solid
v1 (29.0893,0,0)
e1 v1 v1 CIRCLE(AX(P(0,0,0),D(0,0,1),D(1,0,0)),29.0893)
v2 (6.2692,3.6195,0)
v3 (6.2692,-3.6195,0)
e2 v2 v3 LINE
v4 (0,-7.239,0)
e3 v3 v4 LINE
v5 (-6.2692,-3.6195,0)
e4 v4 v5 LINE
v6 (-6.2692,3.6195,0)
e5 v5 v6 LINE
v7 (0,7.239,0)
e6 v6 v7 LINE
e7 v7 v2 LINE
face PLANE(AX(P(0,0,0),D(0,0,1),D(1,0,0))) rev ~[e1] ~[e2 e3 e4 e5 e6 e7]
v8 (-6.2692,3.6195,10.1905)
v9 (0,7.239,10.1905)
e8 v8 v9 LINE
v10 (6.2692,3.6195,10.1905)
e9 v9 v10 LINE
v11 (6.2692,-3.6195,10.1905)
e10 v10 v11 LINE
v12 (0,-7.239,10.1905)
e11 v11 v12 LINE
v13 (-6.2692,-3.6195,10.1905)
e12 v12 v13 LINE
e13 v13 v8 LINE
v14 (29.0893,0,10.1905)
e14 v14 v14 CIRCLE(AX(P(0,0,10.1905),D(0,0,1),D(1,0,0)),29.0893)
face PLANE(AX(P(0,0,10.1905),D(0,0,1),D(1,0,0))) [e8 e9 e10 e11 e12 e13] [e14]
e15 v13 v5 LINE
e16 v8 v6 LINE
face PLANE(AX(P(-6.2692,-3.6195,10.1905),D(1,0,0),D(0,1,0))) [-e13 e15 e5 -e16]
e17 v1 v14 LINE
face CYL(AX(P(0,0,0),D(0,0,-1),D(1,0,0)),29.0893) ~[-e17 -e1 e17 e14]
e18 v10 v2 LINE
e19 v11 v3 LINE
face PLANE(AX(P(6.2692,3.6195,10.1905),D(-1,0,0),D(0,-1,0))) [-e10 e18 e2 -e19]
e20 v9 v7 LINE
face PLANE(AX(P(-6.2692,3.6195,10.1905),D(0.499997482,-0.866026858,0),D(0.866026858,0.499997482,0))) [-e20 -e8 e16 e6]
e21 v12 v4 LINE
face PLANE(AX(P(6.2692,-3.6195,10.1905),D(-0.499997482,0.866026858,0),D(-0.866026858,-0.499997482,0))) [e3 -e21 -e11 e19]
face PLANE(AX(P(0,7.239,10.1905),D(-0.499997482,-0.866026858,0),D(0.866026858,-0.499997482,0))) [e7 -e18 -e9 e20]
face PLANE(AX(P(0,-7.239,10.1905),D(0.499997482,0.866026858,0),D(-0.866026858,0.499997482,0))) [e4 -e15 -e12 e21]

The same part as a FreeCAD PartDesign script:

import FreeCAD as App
import Part
import Sketcher

V = App.Vector
Q = App.Units.Quantity

doc = App.newDocument("Part")
body = doc.addObject("PartDesign::Body", "Body")

# Sketch on XY plane
sketch1 = body.newObject("Sketcher::SketchObject", "Sketch")
sketch1.AttachmentSupport = (doc.getObject("XY_Plane"), [""])
sketch1.MapMode = "FlatFace"
sketch1.addGeometry(Part.Circle(V(0, 0, 0), V(0, 0, 1), 29.0893), False)
sketch1.addConstraint(Sketcher.Constraint("Coincident", 0, 3, -1, 1))
sketch1.addConstraint(Sketcher.Constraint("Diameter", 0, Q("2.2905 in")))
pad1 = body.newObject("PartDesign::Pad", "Pad")
pad1.Profile = sketch1
pad1.Length = Q("0.4012008 in")

# Sketch on XY plane
sketch2 = body.newObject("Sketcher::SketchObject", "Sketch001")
sketch2.AttachmentSupport = (doc.getObject("XY_Plane"), [""])
sketch2.MapMode = "FlatFace"
sketch2.AttachmentOffset = App.Placement(V(0, 0, 0.4012008 * 25.4), App.Rotation())
sketch2.addGeometry(Part.LineSegment(V(6.2692, 3.6195, 0), V(0, 7.239, 0)), False)
sketch2.addGeometry(Part.LineSegment(V(0, 7.239, 0), V(-6.2692, 3.6195, 0)), False)
sketch2.addGeometry(Part.LineSegment(V(-6.2692, 3.6195, 0), V(-6.2692, -3.6195, 0)), False)
sketch2.addGeometry(Part.LineSegment(V(-6.2692, -3.6195, 0), V(0, -7.239, 0)), False)
sketch2.addGeometry(Part.LineSegment(V(0, -7.239, 0), V(6.2692, -3.6195, 0)), False)
sketch2.addGeometry(Part.LineSegment(V(6.2692, -3.6195, 0), V(6.2692, 3.6195, 0)), False)
sketch2.addConstraint(Sketcher.Constraint("Coincident", 0, 2, 1, 1))
sketch2.addConstraint(Sketcher.Constraint("Coincident", 1, 2, 2, 1))
sketch2.addConstraint(Sketcher.Constraint("Coincident", 2, 2, 3, 1))
sketch2.addConstraint(Sketcher.Constraint("Coincident", 3, 2, 4, 1))
sketch2.addConstraint(Sketcher.Constraint("Coincident", 4, 2, 5, 1))
sketch2.addConstraint(Sketcher.Constraint("Coincident", 5, 2, 0, 1))
sketch2.addConstraint(Sketcher.Constraint("Vertical", 2))
sketch2.addConstraint(Sketcher.Constraint("Vertical", 5))
sketch2.addConstraint(Sketcher.Constraint("Symmetric", 0, 2, 3, 2, -1, 1))
sketch2.addConstraint(Sketcher.Constraint("Symmetric", 1, 2, 4, 2, -1, 1))
sketch2.addConstraint(Sketcher.Constraint("PointOnObject", 0, 2, -2))
sketch2.addConstraint(Sketcher.Constraint("Parallel", 0, 3))
sketch2.addConstraint(Sketcher.Constraint("Horizontal", 2, 2, 4, 2))
sketch2.addConstraint(Sketcher.Constraint("DistanceY", 3, 2, 0, 2, Q("0.57 in")))
sketch2.addConstraint(Sketcher.Constraint("Angle", 0, Q("150.0002 deg")))
sketch2.addConstraint(Sketcher.Constraint("DistanceY", 2, 2, 2, 1, Q("0.285 in")))
pocket1 = body.newObject("PartDesign::Pocket", "Pocket")
pocket1.Profile = sketch2
pocket1.Length = Q("0.4012008 in")

doc.recompute()
